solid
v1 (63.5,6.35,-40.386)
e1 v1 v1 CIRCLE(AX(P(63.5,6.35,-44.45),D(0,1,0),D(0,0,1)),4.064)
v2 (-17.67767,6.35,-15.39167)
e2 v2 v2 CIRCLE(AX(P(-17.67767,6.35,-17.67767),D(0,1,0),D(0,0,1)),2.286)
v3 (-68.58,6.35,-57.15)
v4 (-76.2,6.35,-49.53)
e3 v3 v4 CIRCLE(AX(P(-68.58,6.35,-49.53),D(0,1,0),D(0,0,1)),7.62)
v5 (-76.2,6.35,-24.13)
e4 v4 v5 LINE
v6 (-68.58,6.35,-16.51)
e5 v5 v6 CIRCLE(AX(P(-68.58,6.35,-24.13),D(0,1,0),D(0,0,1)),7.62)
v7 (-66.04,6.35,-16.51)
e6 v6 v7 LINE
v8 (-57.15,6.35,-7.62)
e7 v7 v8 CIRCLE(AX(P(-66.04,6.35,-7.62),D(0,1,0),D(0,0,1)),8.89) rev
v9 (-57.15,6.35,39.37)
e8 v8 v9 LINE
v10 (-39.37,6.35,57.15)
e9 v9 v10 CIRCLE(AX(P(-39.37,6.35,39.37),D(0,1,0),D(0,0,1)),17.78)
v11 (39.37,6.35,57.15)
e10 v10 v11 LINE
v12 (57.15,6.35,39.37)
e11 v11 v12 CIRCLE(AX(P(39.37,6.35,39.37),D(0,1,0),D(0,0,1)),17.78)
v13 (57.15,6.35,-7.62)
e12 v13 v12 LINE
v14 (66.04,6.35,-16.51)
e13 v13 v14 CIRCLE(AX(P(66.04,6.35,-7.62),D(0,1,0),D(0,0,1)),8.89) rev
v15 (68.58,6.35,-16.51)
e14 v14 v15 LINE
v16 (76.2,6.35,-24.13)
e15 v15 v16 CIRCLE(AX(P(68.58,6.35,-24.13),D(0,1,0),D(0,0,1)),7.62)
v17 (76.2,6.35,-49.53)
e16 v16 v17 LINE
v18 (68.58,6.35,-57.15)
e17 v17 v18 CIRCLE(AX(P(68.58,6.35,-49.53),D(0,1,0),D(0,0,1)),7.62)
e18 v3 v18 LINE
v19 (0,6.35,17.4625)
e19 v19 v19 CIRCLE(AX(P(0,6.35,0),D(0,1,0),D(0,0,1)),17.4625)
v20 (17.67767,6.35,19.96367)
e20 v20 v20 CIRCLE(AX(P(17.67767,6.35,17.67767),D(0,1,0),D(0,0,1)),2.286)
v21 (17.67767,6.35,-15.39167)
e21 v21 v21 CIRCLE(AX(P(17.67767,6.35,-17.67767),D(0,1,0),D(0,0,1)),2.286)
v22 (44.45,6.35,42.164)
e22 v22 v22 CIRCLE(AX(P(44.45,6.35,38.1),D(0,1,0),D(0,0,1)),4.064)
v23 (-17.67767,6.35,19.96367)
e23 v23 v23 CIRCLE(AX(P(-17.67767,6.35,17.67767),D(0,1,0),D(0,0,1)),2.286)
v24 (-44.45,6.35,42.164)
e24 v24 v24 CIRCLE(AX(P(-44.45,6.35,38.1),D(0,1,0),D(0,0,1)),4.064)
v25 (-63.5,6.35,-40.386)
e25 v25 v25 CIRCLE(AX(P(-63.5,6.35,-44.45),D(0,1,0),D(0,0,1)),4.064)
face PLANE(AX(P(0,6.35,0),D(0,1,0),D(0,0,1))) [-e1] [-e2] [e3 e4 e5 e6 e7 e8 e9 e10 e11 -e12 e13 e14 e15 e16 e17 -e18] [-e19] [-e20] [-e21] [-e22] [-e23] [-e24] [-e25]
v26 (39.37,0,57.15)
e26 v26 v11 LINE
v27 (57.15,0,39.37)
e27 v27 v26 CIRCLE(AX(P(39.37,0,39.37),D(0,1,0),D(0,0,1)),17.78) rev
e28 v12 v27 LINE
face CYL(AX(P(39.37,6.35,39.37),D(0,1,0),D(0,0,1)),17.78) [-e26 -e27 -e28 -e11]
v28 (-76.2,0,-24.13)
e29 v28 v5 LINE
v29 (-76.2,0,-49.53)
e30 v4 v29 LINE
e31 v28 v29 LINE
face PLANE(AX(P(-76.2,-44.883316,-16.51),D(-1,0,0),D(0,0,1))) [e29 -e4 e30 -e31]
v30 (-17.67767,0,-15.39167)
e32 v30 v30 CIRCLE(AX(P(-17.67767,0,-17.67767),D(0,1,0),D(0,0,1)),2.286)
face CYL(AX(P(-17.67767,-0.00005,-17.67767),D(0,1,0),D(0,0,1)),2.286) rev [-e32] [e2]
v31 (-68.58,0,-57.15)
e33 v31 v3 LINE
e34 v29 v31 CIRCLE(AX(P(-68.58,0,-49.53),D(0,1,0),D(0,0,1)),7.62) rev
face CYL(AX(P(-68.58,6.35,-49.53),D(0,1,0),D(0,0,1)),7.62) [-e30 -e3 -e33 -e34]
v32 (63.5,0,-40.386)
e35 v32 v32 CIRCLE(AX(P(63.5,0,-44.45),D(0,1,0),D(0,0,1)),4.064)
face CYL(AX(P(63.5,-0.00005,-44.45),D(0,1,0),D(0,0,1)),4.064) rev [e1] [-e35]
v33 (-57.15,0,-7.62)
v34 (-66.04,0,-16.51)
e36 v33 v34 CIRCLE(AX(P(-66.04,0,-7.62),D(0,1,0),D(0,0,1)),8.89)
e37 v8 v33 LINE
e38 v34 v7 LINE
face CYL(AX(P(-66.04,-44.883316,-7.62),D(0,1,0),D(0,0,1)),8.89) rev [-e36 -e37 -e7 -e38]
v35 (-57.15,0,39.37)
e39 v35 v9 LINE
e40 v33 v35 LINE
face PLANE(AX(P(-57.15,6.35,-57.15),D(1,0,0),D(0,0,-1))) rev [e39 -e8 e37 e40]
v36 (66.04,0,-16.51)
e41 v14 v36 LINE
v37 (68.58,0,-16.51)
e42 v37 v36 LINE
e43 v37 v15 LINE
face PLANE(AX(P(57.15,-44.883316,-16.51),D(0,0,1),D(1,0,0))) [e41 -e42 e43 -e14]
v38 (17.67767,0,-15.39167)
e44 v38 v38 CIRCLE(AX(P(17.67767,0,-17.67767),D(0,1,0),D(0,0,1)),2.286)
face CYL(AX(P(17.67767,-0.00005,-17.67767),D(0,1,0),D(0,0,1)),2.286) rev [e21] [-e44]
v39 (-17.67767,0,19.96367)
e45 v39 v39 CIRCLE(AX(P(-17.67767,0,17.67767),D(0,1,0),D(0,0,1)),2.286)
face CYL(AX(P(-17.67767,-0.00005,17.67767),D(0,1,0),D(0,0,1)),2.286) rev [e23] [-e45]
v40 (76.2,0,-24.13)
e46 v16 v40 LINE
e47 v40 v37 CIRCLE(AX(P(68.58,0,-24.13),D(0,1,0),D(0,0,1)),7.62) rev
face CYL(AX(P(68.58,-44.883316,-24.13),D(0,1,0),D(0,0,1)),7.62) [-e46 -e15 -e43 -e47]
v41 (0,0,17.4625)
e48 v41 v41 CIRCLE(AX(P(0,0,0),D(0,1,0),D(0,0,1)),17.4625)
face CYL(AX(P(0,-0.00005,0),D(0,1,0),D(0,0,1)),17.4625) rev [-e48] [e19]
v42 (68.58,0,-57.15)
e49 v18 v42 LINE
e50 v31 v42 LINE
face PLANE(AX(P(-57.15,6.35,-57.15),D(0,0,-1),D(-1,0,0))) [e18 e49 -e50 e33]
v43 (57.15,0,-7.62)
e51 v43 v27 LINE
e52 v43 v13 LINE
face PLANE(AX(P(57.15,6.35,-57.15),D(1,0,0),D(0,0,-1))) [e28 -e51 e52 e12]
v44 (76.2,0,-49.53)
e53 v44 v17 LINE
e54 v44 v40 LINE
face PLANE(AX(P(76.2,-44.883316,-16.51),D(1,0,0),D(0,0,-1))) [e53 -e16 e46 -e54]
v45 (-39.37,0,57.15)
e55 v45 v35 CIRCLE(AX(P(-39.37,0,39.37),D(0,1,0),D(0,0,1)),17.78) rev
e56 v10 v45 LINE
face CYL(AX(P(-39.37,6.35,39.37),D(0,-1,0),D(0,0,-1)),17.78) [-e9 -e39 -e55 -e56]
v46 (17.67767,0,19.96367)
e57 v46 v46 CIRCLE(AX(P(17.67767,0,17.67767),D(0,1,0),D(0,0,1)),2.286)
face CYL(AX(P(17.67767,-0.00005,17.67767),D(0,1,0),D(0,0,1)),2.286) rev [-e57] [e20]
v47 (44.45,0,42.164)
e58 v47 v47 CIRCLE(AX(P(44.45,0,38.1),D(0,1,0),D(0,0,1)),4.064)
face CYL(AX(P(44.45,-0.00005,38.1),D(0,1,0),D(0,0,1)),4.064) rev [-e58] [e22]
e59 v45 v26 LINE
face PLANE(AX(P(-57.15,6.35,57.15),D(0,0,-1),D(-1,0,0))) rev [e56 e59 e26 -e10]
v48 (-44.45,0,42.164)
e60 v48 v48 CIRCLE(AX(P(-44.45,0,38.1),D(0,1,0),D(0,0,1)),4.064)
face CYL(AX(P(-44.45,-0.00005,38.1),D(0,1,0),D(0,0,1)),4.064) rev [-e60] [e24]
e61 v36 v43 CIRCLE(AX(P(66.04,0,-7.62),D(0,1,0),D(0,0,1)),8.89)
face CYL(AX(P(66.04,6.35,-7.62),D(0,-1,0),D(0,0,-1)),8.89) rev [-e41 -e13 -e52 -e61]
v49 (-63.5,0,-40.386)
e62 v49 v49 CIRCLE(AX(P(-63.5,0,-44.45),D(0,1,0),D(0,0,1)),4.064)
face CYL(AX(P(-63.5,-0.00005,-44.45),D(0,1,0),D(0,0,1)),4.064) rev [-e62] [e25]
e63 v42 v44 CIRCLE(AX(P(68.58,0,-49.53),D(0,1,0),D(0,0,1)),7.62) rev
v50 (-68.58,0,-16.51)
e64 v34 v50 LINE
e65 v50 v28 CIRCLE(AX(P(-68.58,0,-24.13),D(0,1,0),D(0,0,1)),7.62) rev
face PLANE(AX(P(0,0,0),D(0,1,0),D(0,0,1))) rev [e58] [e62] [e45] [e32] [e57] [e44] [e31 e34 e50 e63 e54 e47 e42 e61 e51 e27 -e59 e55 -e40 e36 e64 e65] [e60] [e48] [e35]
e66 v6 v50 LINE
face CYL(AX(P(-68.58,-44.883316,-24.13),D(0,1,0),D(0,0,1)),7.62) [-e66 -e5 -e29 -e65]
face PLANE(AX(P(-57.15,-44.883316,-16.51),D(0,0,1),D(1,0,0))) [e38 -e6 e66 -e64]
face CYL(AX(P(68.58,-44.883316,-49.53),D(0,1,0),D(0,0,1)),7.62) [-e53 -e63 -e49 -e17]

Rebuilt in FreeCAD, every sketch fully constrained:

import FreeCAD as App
import Part
import Sketcher

V = App.Vector
Q = App.Units.Quantity


def edges_at(feature, points):
    """Names of the edges that pass closest to the given points."""
    edges = feature.Shape.Edges
    near = lambda p: min(range(len(edges)), key=lambda i: edges[i].distToShape(Part.Vertex(*p))[0])
    return sorted({f"Edge{near(p) + 1}" for p in points})


def add_polygon(sketch, points):
    """Adds a closed chain of lines whose ends are joined by coincident constraints."""
    first, n = sketch.GeometryCount, len(points)
    for a, b in zip(points, points[1:] + points[:1]):
        sketch.addGeometry(Part.LineSegment(App.Vector(*a, 0), App.Vector(*b, 0)), False)
    for i in range(n):
        sketch.addConstraint(Sketcher.Constraint("Coincident", first + i, 2, first + (i + 1) % n, 1))

doc = App.newDocument("Part")
body = doc.addObject("PartDesign::Body", "Body")

# Sketch on XZ plane
sketch1 = body.newObject("Sketcher::SketchObject", "Sketch")
sketch1.AttachmentSupport = (doc.getObject("XZ_Plane"), [""])
sketch1.MapMode = "FlatFace"
add_polygon(sketch1, [(-57, -57), (-57, 57), (57, 57), (57, -57)])  # lines 0-3
sketch1.addConstraint([
    Sketcher.Constraint("Vertical", 0),
    Sketcher.Constraint("Horizontal", 1),
    Sketcher.Constraint("Vertical", 2),
    Sketcher.Constraint("Horizontal", 3),
    Sketcher.Constraint("Symmetric", 0, 2, 2, 2, -1, 1),
    Sketcher.Constraint("Equal", 3, 0),
    Sketcher.Constraint("DistanceX", 1, 1, 1, 2, Q("4.5 in")),
])
pad1 = body.newObject("PartDesign::Pad", "Pad")
pad1.Profile = sketch1
pad1.Length = Q("0.25 in")
pad1.Reversed = True

# Sketch on XZ plane
sketch2 = body.newObject("Sketcher::SketchObject", "Sketch001")
sketch2.AttachmentSupport = (doc.getObject("XZ_Plane"), [""])
sketch2.MapMode = "FlatFace"
sketch2.AttachmentOffset = App.Placement(V(0, 0, -0.25 * 25.4), App.Rotation())
add_polygon(sketch2, [(57, -57), (57, -17), (76, -17), (76, -57)])  # lines 0-3
add_polygon(sketch2, [(-76, -57), (-76, -17), (-57, -17), (-57, -57)])  # lines 4-7
sketch2.addConstraint([
    Sketcher.Constraint("Vertical", 0),
    Sketcher.Constraint("Horizontal", 1),
    Sketcher.Constraint("Vertical", 2),
    Sketcher.Constraint("Horizontal", 3),
    Sketcher.Constraint("Vertical", 4),
    Sketcher.Constraint("Horizontal", 5),
    Sketcher.Constraint("Vertical", 6),
    Sketcher.Constraint("Horizontal", 7),
    Sketcher.Constraint("Symmetric", 1, 2, 4, 2, -2),
    Sketcher.Constraint("Symmetric", 3, 2, 6, 2, -2),
    Sketcher.Constraint("DistanceY", 0, 1, 0, 2, Q("1.6 in")),
    Sketcher.Constraint("DistanceX", -1, 1, 1, 2, Q("3 in")),
    Sketcher.Constraint("DistanceX", 1, 1, 1, 2, Q("0.75 in")),
    Sketcher.Constraint("DistanceY", 0, 2, -1, 1, Q("0.65 in")),
])
pad2 = body.newObject("PartDesign::Pad", "Pad001")
pad2.Profile = sketch2
pad2.Length = Q("0.25 in")

# Sketch on XZ plane
sketch3 = body.newObject("Sketcher::SketchObject", "Sketch002")
sketch3.AttachmentSupport = (doc.getObject("XZ_Plane"), [""])
sketch3.MapMode = "FlatFace"
sketch3.AttachmentOffset = App.Placement(V(0, 0, -0.25 * 25.4), App.Rotation())
sketch3.addGeometry([
    Part.Circle(V(-63.5, -44.5, 0), V(0, 0, 1), 4.1),  # 0
    Part.Circle(V(63.5, -44.5, 0), V(0, 0, 1), 4.1),  # 1
    Part.Circle(V(44.5, 38.1, 0), V(0, 0, 1), 4.1),  # 2
    Part.Circle(V(-44.5, 38.1, 0), V(0, 0, 1), 4.1),  # 3
    Part.Circle(V(0, 0, 0), V(0, 0, 1), 17.5),  # 4
    Part.Circle(V(-17.7, -17.7, 0), V(0, 0, 1), 2.3),  # 5
    Part.Circle(V(17.7, -17.7, 0), V(0, 0, 1), 2.3),  # 6
    Part.Circle(V(17.7, 17.7, 0), V(0, 0, 1), 2.3),  # 7
    Part.Circle(V(-17.7, 17.7, 0), V(0, 0, 1), 2.3),  # 8
], False)
sketch3.addConstraint([
    Sketcher.Constraint("Coincident", 4, 3, -1, 1),
    Sketcher.Constraint("Equal", 0, 1),
    Sketcher.Constraint("Equal", 1, 2),
    Sketcher.Constraint("Equal", 2, 3),
    Sketcher.Constraint("Equal", 5, 6),
    Sketcher.Constraint("Equal", 6, 7),
    Sketcher.Constraint("Equal", 7, 8),
    Sketcher.Constraint("Symmetric", 5, 3, 7, 3, -1, 1),
    Sketcher.Constraint("Symmetric", 6, 3, 8, 3, -1, 1),
    Sketcher.Constraint("Symmetric", 0, 3, 1, 3, -2),
    Sketcher.Constraint("Symmetric", 2, 3, 3, 3, -2),
    Sketcher.Constraint("Symmetric", 5, 3, 6, 3, -2),
    Sketcher.Constraint("Diameter", 0, Q("0.32 in")),
    Sketcher.Constraint("Diameter", 5, Q("0.18 in")),
    Sketcher.Constraint("Diameter", 4, Q("1.375 in")),
    Sketcher.Constraint("DistanceX", 0, 3, 1, 3, Q("5 in")),
    Sketcher.Constraint("DistanceY", -1, 1, 2, 3, Q("1.5 in")),
    Sketcher.Constraint("DistanceX", 3, 3, 2, 3, Q("3.5 in")),
    Sketcher.Constraint("DistanceY", 0, 3, -1, 1, Q("1.75 in")),
    Sketcher.Constraint("DistanceX", 5, 3, -1, 1, Q("17.67767 mm")),
    Sketcher.Constraint("DistanceY", 5, 3, -1, 1, Q("17.67767 mm")),
])
pocket1 = body.newObject("PartDesign::Pocket", "Pocket")
pocket1.Profile = sketch3
pocket1.Type = "ThroughAll"
pocket1.Reversed = True
doc.recompute()

fillet = body.newObject("PartDesign::Fillet", "Fillet")
fillet.Base = (pocket1, edges_at(pocket1, [(57.15, 3.175, -16.51), (-57.15, 3.175, -16.51)]))
fillet.Radius = Q("0.35 in")
doc.recompute()

fillet2 = body.newObject("PartDesign::Fillet", "Fillet001")
fillet2.Base = (fillet, edges_at(fillet, [(57.15, 3.175, 57.15), (-57.15, 3.175, 57.15)]))
fillet2.Radius = Q("0.7 in")
doc.recompute()

fillet3 = body.newObject("PartDesign::Fillet", "Fillet002")
fillet3.Base = (fillet2, edges_at(fillet2, [
    (76.2, 3.175, -16.51),
    (76.2, 3.175, -57.15),
    (-76.2, 3.175, -57.15),
    (-76.2, 3.175, -16.51),
]))
fillet3.Radius = Q("0.3 in")

doc.recompute()
